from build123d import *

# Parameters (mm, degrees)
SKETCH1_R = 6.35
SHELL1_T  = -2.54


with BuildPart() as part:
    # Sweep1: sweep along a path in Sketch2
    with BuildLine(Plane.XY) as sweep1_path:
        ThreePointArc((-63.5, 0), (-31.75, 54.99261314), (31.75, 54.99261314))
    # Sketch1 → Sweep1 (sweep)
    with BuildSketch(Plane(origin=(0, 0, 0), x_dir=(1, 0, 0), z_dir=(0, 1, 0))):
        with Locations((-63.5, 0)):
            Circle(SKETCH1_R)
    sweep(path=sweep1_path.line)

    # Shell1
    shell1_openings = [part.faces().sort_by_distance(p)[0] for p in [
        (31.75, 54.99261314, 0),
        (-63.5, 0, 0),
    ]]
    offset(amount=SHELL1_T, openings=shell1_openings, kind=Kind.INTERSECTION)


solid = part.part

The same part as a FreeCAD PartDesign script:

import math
import FreeCAD as App
import Part
import Sketcher

V = App.Vector
Q = App.Units.Quantity


def faces_at(feature, points):
    """Names of the faces that lie closest to the given points."""
    faces = feature.Shape.Faces
    near = lambda p: min(range(len(faces)), key=lambda i: faces[i].distToShape(Part.Vertex(*p))[0])
    return sorted({f"Face{near(p) + 1}" for p in points})

doc = App.newDocument("Part")
body = doc.addObject("PartDesign::Body", "Body")

# Sketch on XZ plane
sketch1 = body.newObject("Sketcher::SketchObject", "Sketch")
sketch1.AttachmentSupport = (doc.getObject("XZ_Plane"), [""])
sketch1.MapMode = "FlatFace"
sketch1.addGeometry(Part.Circle(V(-64, 0, 0), V(0, 0, 1), 6), False)
sketch1.addConstraint([
    Sketcher.Constraint("PointOnObject", 0, 3, -1),
    Sketcher.Constraint("Diameter", 0, Q("0.5 in")),
    Sketcher.Constraint("DistanceX", 0, 3, -1, 1, Q("2.5 in")),
])

# Sketch on XY plane
sketch2 = body.newObject("Sketcher::SketchObject", "Sketch001")
sketch2.AttachmentSupport = (doc.getObject("XY_Plane"), [""])
sketch2.MapMode = "FlatFace"
sketch2.addGeometry(Part.ArcOfCircle(Part.Circle(V(0, 0, 0), V(0, 0, 1), 64), math.radians(60), math.radians(180)), False)
sketch2.addConstraint([
    Sketcher.Constraint("Coincident", 0, 3, -1, 1),
    Sketcher.Constraint("PointOnObject", 0, 2, -1),
    Sketcher.Constraint("Radius", 0, Q("2.5 in")),
    Sketcher.Constraint("DistanceX", -1, 1, 0, 1, Q("1.25 in")),
])
doc.recompute()

additivepipe = body.newObject("PartDesign::AdditivePipe", "AdditivePipe")
additivepipe.Profile = sketch1
additivepipe.Spine = (sketch2, ["Edge1"])
doc.recompute()

thickness = body.newObject("PartDesign::Thickness", "Thickness")
thickness.Base = (additivepipe, faces_at(additivepipe, [(31.75, 54.993, 0), (-63.5, 0, 0)]))
thickness.Value = Q("0.1 in")
thickness.Reversed = True
thickness.Join = "Intersection"

doc.recompute()
